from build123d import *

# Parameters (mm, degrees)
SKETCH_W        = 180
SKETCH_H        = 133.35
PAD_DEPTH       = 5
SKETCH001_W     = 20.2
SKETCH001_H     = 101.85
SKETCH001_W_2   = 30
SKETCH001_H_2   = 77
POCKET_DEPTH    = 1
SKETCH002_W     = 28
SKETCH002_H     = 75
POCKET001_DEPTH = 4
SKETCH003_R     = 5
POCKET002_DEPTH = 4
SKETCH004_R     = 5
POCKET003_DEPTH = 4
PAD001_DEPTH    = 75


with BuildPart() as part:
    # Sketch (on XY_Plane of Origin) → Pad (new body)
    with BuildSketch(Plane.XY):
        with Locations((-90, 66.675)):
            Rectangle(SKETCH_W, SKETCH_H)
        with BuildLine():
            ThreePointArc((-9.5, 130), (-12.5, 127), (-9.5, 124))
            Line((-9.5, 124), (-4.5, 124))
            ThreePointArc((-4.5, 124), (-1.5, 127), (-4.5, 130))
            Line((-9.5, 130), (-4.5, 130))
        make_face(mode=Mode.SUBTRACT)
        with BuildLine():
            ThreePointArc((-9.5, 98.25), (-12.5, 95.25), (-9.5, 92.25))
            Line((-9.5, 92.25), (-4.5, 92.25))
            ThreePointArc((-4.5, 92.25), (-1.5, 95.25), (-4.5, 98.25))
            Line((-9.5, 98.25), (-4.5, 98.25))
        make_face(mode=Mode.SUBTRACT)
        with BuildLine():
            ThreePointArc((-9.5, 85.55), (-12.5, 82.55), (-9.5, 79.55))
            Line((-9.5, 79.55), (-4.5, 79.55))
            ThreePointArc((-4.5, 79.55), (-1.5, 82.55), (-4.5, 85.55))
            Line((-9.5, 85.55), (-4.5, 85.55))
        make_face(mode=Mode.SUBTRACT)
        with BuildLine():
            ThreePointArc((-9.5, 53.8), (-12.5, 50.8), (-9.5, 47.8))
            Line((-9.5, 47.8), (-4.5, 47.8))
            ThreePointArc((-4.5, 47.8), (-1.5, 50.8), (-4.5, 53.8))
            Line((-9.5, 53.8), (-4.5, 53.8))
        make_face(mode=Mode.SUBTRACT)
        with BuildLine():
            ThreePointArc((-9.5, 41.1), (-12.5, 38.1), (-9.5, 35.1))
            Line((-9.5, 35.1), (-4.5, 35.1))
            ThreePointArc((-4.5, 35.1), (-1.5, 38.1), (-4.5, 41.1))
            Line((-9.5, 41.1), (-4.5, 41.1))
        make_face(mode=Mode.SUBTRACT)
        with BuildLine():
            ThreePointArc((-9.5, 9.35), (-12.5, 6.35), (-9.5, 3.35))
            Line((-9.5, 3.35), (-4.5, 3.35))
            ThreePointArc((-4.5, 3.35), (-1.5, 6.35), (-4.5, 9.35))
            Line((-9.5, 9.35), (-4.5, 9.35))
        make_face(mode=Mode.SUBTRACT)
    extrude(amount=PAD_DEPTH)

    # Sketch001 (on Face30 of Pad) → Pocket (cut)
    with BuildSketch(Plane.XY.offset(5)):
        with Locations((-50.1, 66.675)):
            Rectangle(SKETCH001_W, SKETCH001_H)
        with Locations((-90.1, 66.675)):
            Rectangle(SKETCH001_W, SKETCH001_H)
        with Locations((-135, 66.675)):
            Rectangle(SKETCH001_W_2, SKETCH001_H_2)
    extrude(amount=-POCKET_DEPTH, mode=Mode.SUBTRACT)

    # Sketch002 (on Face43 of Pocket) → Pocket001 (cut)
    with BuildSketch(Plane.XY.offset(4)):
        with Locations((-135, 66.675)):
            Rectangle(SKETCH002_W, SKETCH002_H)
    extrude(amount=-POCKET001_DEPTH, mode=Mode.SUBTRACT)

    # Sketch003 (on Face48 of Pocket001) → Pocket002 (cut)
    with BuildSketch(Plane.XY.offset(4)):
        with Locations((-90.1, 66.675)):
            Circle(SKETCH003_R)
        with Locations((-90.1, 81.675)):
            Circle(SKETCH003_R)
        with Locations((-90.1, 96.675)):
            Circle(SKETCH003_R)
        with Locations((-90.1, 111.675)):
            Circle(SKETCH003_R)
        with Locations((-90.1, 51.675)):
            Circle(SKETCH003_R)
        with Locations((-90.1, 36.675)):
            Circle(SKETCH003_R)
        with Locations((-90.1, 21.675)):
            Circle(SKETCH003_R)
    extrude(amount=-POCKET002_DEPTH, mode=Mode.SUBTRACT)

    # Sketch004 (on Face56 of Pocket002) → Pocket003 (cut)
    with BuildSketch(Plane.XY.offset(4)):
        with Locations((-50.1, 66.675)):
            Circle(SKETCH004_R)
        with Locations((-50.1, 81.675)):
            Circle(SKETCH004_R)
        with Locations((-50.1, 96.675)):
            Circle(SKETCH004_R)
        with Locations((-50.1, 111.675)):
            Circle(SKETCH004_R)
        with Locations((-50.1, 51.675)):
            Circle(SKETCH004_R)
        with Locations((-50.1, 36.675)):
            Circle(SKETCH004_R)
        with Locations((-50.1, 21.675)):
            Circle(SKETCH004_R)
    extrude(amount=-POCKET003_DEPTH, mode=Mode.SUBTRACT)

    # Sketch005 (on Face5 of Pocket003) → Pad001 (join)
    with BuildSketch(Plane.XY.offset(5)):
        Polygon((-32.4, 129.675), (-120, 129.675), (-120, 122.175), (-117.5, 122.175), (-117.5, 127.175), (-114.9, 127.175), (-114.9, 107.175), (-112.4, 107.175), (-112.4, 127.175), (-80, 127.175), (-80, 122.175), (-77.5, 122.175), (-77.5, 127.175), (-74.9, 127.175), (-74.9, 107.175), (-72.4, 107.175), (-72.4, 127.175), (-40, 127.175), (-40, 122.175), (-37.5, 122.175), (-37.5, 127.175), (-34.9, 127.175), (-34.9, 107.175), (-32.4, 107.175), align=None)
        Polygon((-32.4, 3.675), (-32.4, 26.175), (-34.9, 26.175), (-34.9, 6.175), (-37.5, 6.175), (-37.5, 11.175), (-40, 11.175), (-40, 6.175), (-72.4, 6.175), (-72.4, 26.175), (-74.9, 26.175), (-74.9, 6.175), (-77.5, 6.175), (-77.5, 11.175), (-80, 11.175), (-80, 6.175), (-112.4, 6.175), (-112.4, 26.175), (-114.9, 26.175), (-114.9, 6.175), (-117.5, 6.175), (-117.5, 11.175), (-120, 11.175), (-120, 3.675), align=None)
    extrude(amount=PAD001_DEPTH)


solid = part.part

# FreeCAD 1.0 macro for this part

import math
import FreeCAD as App
import Part
import Sketcher
from FreeCAD import Vector
Q = App.Units.Quantity

doc = App.newDocument("Part")
body = doc.addObject("PartDesign::Body", "Body")

# Sketch on XY plane
sketch1 = body.newObject("Sketcher::SketchObject", "Sketch")
sketch1.AttachmentSupport = (doc.getObject("XY_Plane"), [""])
sketch1.MapMode = "FlatFace"
sketch1.addGeometry([
    Part.LineSegment(Vector(-180, 133.3, 0), Vector(-180, 0, 0)),  # 0
    Part.LineSegment(Vector(-180, 0, 0), Vector(0, 0, 0)),  # 1
    Part.LineSegment(Vector(0, 0, 0), Vector(0, 133.3, 0)),  # 2
    Part.LineSegment(Vector(0, 133.3, 0), Vector(-180, 133.3, 0)),  # 3
    Part.ArcOfCircle(Part.Circle(Vector(-9.5, 6.3, 0), Vector(0, 0, 1), 3), math.radians(90), math.radians(270)),  # 4
    Part.LineSegment(Vector(-9.5, 9.3, 0), Vector(-4.5, 9.3, 0)),  # 5
    Part.ArcOfCircle(Part.Circle(Vector(-4.5, 6.3, 0), Vector(0, 0, 1), 3), math.radians(-90), math.radians(90)),  # 6
    Part.LineSegment(Vector(-4.5, 3.4, 0), Vector(-9.5, 3.4, 0)),  # 7
    Part.ArcOfCircle(Part.Circle(Vector(-9.5, 38.1, 0), Vector(0, 0, 1), 3), math.radians(90), math.radians(270)),  # 8
    Part.LineSegment(Vector(-9.5, 41.1, 0), Vector(-4.5, 41.1, 0)),  # 9
    Part.ArcOfCircle(Part.Circle(Vector(-4.5, 38.1, 0), Vector(0, 0, 1), 3), math.radians(-90), math.radians(90)),  # 10
    Part.LineSegment(Vector(-4.5, 35.1, 0), Vector(-9.5, 35.1, 0)),  # 11
    Part.ArcOfCircle(Part.Circle(Vector(-9.5, 50.8, 0), Vector(0, 0, 1), 3), math.radians(90), math.radians(270)),  # 12
    Part.LineSegment(Vector(-9.5, 53.8, 0), Vector(-4.5, 53.8, 0)),  # 13
    Part.ArcOfCircle(Part.Circle(Vector(-4.5, 50.8, 0), Vector(0, 0, 1), 3), math.radians(-90), math.radians(90)),  # 14
    Part.LineSegment(Vector(-4.5, 47.8, 0), Vector(-9.5, 47.8, 0)),  # 15
    Part.ArcOfCircle(Part.Circle(Vector(-9.5, 82.5, 0), Vector(0, 0, 1), 3), math.radians(90), math.radians(270)),  # 16
    Part.LineSegment(Vector(-9.5, 85.5, 0), Vector(-4.5, 85.5, 0)),  # 17
    Part.ArcOfCircle(Part.Circle(Vector(-4.5, 82.5, 0), Vector(0, 0, 1), 3), math.radians(-90), math.radians(90)),  # 18
    Part.LineSegment(Vector(-4.5, 79.5, 0), Vector(-9.5, 79.5, 0)),  # 19
    Part.ArcOfCircle(Part.Circle(Vector(-9.5, 95.2, 0), Vector(0, 0, 1), 3), math.radians(90), math.radians(270)),  # 20
    Part.LineSegment(Vector(-9.5, 98.2, 0), Vector(-4.5, 98.2, 0)),  # 21
    Part.ArcOfCircle(Part.Circle(Vector(-4.5, 95.2, 0), Vector(0, 0, 1), 3), math.radians(-90), math.radians(90)),  # 22
    Part.LineSegment(Vector(-4.5, 92.2, 0), Vector(-9.5, 92.2, 0)),  # 23
    Part.ArcOfCircle(Part.Circle(Vector(-9.5, 127, 0), Vector(0, 0, 1), 3), math.radians(90), math.radians(270)),  # 24
    Part.LineSegment(Vector(-9.5, 130, 0), Vector(-4.5, 130, 0)),  # 25
    Part.ArcOfCircle(Part.Circle(Vector(-4.5, 127, 0), Vector(0, 0, 1), 3), math.radians(-90), math.radians(90)),  # 26
    Part.LineSegment(Vector(-4.5, 124, 0), Vector(-9.5, 124, 0)),  # 27
], False)
sketch1.addConstraint([
    Sketcher.Constraint("Coincident", 0, 2, 1, 1),
    Sketcher.Constraint("Coincident", 1, 2, 2, 1),
    Sketcher.Constraint("Coincident", 2, 2, 3, 1),
    Sketcher.Constraint("Coincident", 3, 2, 0, 1),
    Sketcher.Constraint("Tangent", 4, 1, 5, 1),
    Sketcher.Constraint("Tangent", 5, 2, 6, 2),
    Sketcher.Constraint("Tangent", 6, 1, 7, 1),
    Sketcher.Constraint("Tangent", 7, 2, 4, 2),
    Sketcher.Constraint("Tangent", 8, 1, 9, 1),
    Sketcher.Constraint("Tangent", 9, 2, 10, 2),
    Sketcher.Constraint("Tangent", 10, 1, 11, 1),
    Sketcher.Constraint("Tangent", 11, 2, 8, 2),
    Sketcher.Constraint("Tangent", 12, 1, 13, 1),
    Sketcher.Constraint("Tangent", 13, 2, 14, 2),
    Sketcher.Constraint("Tangent", 14, 1, 15, 1),
    Sketcher.Constraint("Tangent", 15, 2, 12, 2),
    Sketcher.Constraint("Tangent", 16, 1, 17, 1),
    Sketcher.Constraint("Tangent", 17, 2, 18, 2),
    Sketcher.Constraint("Tangent", 18, 1, 19, 1),
    Sketcher.Constraint("Tangent", 19, 2, 16, 2),
    Sketcher.Constraint("Tangent", 20, 1, 21, 1),
    Sketcher.Constraint("Tangent", 21, 2, 22, 2),
    Sketcher.Constraint("Tangent", 22, 1, 23, 1),
    Sketcher.Constraint("Tangent", 23, 2, 20, 2),
    Sketcher.Constraint("Tangent", 24, 1, 25, 1),
    Sketcher.Constraint("Tangent", 25, 2, 26, 2),
    Sketcher.Constraint("Tangent", 26, 1, 27, 1),
    Sketcher.Constraint("Tangent", 27, 2, 24, 2),
    Sketcher.Constraint("Vertical", 0),
    Sketcher.Constraint("Horizontal", 1),
    Sketcher.Constraint("Vertical", 2),
    Sketcher.Constraint("Horizontal", 3),
    Sketcher.Constraint("Horizontal", 5),
    Sketcher.Constraint("Horizontal", 7),
    Sketcher.Constraint("Horizontal", 9),
    Sketcher.Constraint("Horizontal", 11),
    Sketcher.Constraint("Horizontal", 13),
    Sketcher.Constraint("Horizontal", 15),
    Sketcher.Constraint("Horizontal", 17),
    Sketcher.Constraint("Horizontal", 19),
    Sketcher.Constraint("Horizontal", 21),
    Sketcher.Constraint("Horizontal", 23),
    Sketcher.Constraint("Horizontal", 25),
    Sketcher.Constraint("Horizontal", 27),
    Sketcher.Constraint("Coincident", 1, 2, -1, 1),
    Sketcher.Constraint("Equal", 6, 8),
    Sketcher.Constraint("Equal", 10, 12),
    Sketcher.Constraint("Equal", 14, 16),
    Sketcher.Constraint("Equal", 18, 20),
    Sketcher.Constraint("Equal", 22, 24),
    Sketcher.Constraint("Vertical", 4, 3, 8, 3),
    Sketcher.Constraint("Vertical", 6, 3, 10, 3),
    Sketcher.Constraint("Vertical", 8, 3, 12, 3),
    Sketcher.Constraint("Vertical", 10, 3, 14, 3),
    Sketcher.Constraint("Vertical", 12, 3, 16, 3),
    Sketcher.Constraint("Vertical", 14, 3, 18, 3),
    Sketcher.Constraint("Vertical", 16, 3, 20, 3),
    Sketcher.Constraint("Vertical", 18, 3, 22, 3),
    Sketcher.Constraint("Vertical", 20, 3, 24, 3),
    Sketcher.Constraint("Vertical", 22, 3, 26, 3),
    Sketcher.Constraint("Radius", 4, Q("3 mm")),
    Sketcher.Constraint("DistanceX", 1, 1, 1, 2, Q("180 mm")),
    Sketcher.Constraint("DistanceX", 5, 1, 5, 2, Q("5 mm")),
    Sketcher.Constraint("DistanceY", -1, 1, 24, 3, Q("127 mm")),
    Sketcher.Constraint("DistanceY", 0, 2, 0, 1, Q("133.35 mm")),
    Sketcher.Constraint("DistanceX", 4, 3, -1, 1, Q("9.5 mm")),
    Sketcher.Constraint("DistanceY", -1, 1, 8, 3, Q("38.1 mm")),
    Sketcher.Constraint("DistanceY", -1, 1, 12, 3, Q("50.8 mm")),
    Sketcher.Constraint("DistanceY", 4, 3, 16, 3, Q("76.2 mm")),
    Sketcher.Constraint("DistanceY", 16, 3, 20, 3, Q("12.7 mm")),
    Sketcher.Constraint("DistanceY", 22, 3, 2, 2, Q("38.1 mm")),
])
pad1 = body.newObject("PartDesign::Pad", "Pad")
pad1.Profile = sketch1
pad1.Length = 5

# Sketch on XY plane
sketch2 = body.newObject("Sketcher::SketchObject", "Sketch001")
sketch2.AttachmentSupport = (doc.getObject("XY_Plane"), [""])
sketch2.MapMode = "FlatFace"
sketch2.AttachmentOffset = App.Placement(Vector(0, 0, 5), App.Rotation())
sketch2.addGeometry([
    Part.LineSegment(Vector(-60, 118, 0), Vector(-60, 16, 0)),  # 0
    Part.LineSegment(Vector(-60, 16, 0), Vector(-40, 16, 0)),  # 1
    Part.LineSegment(Vector(-40, 16, 0), Vector(-40, 118, 0)),  # 2
    Part.LineSegment(Vector(-40, 118, 0), Vector(-60, 118, 0)),  # 3
    Part.LineSegment(Vector(-100, 118, 0), Vector(-100, 16, 0)),  # 4
    Part.LineSegment(Vector(-100, 16, 0), Vector(-80, 16, 0)),  # 5
    Part.LineSegment(Vector(-80, 16, 0), Vector(-80, 118, 0)),  # 6
    Part.LineSegment(Vector(-80, 118, 0), Vector(-100, 118, 0)),  # 7
    Part.LineSegment(Vector(-150, 105, 0), Vector(-150, 28, 0)),  # 8
    Part.LineSegment(Vector(-150, 28, 0), Vector(-120, 28, 0)),  # 9
    Part.LineSegment(Vector(-120, 28, 0), Vector(-120, 105, 0)),  # 10
    Part.LineSegment(Vector(-120, 105, 0), Vector(-150, 105, 0)),  # 11
], False)
sketch2.addConstraint([
    Sketcher.Constraint("Coincident", 0, 2, 1, 1),
    Sketcher.Constraint("Coincident", 1, 2, 2, 1),
    Sketcher.Constraint("Coincident", 2, 2, 3, 1),
    Sketcher.Constraint("Coincident", 3, 2, 0, 1),
    Sketcher.Constraint("Coincident", 4, 2, 5, 1),
    Sketcher.Constraint("Coincident", 5, 2, 6, 1),
    Sketcher.Constraint("Coincident", 6, 2, 7, 1),
    Sketcher.Constraint("Coincident", 7, 2, 4, 1),
    Sketcher.Constraint("Coincident", 8, 2, 9, 1),
    Sketcher.Constraint("Coincident", 9, 2, 10, 1),
    Sketcher.Constraint("Coincident", 10, 2, 11, 1),
    Sketcher.Constraint("Coincident", 11, 2, 8, 1),
    Sketcher.Constraint("Vertical", 0),
    Sketcher.Constraint("Horizontal", 1),
    Sketcher.Constraint("Vertical", 2),
    Sketcher.Constraint("Horizontal", 3),
    Sketcher.Constraint("Vertical", 4),
    Sketcher.Constraint("Horizontal", 5),
    Sketcher.Constraint("Vertical", 6),
    Sketcher.Constraint("Horizontal", 7),
    Sketcher.Constraint("Vertical", 8),
    Sketcher.Constraint("Horizontal", 9),
    Sketcher.Constraint("Vertical", 10),
    Sketcher.Constraint("Horizontal", 11),
    Sketcher.Constraint("Horizontal", 1, 2, 4, 2),
    Sketcher.Constraint("Horizontal", 3, 2, 6, 2),
    Sketcher.Constraint("Equal", 3, 5),
    Sketcher.Constraint("DistanceX", 9, 1, 9, 2, Q("30 mm")),
    Sketcher.Constraint("DistanceY", 8, 2, 8, 1, Q("77 mm")),
    Sketcher.Constraint("DistanceX", 1, 1, 1, 2, Q("20.2 mm")),
    Sketcher.Constraint("DistanceX", 1, 2, -1, 1, Q("40 mm")),
    Sketcher.Constraint("DistanceX", 5, 2, -1, 1, Q("80 mm")),
    Sketcher.Constraint("DistanceX", 8, 2, -1, 1, Q("150 mm")),
    Sketcher.Constraint("DistanceY", 0, 2, 0, 1, Q("101.85 mm")),
    Sketcher.Constraint("DistanceY", -1, 1, 2, 2, Q("117.6 mm")),
    Sketcher.Constraint("DistanceY", -1, 1, 8, 2, Q("28.175 mm")),
])
pocket1 = body.newObject("PartDesign::Pocket", "Pocket")
pocket1.Profile = sketch2
pocket1.Length = 1

# Sketch on XY plane
sketch3 = body.newObject("Sketcher::SketchObject", "Sketch002")
sketch3.AttachmentSupport = (doc.getObject("XY_Plane"), [""])
sketch3.MapMode = "FlatFace"
sketch3.AttachmentOffset = App.Placement(Vector(0, 0, 4), App.Rotation())
sketch3.addGeometry([
    Part.LineSegment(Vector(-149, 104, 0), Vector(-149, 29, 0)),
    Part.LineSegment(Vector(-149, 29, 0), Vector(-121, 29, 0)),
    Part.LineSegment(Vector(-121, 29, 0), Vector(-121, 104, 0)),
    Part.LineSegment(Vector(-121, 104, 0), Vector(-149, 104, 0)),
], False)
sketch3.addConstraint([
    Sketcher.Constraint("Coincident", 0, 2, 1, 1),
    Sketcher.Constraint("Coincident", 1, 2, 2, 1),
    Sketcher.Constraint("Coincident", 2, 2, 3, 1),
    Sketcher.Constraint("Coincident", 3, 2, 0, 1),
    Sketcher.Constraint("Vertical", 0),
    Sketcher.Constraint("Horizontal", 1),
    Sketcher.Constraint("Vertical", 2),
    Sketcher.Constraint("Horizontal", 3),
    Sketcher.Constraint("DistanceX", 1, 1, 1, 2, Q("28 mm")),
    Sketcher.Constraint("DistanceY", 0, 2, 0, 1, Q("75 mm")),
    Sketcher.Constraint("DistanceX", 0, 2, -1, 1, Q("149 mm")),
    Sketcher.Constraint("DistanceY", -1, 1, 0, 2, Q("29.175 mm")),
])
pocket2 = body.newObject("PartDesign::Pocket", "Pocket001")
pocket2.Profile = sketch3
pocket2.Length = 4

# Sketch on XY plane
sketch4 = body.newObject("Sketcher::SketchObject", "Sketch003")
sketch4.AttachmentSupport = (doc.getObject("XY_Plane"), [""])
sketch4.MapMode = "FlatFace"
sketch4.AttachmentOffset = App.Placement(Vector(0, 0, 4), App.Rotation())
sketch4.addGeometry([
    Part.Circle(Vector(-90, 67, 0), Vector(0, 0, 1), 5),  # 0
    Part.Circle(Vector(-90, 82, 0), Vector(0, 0, 1), 5),  # 1
    Part.Circle(Vector(-90, 97, 0), Vector(0, 0, 1), 5),  # 2
    Part.Circle(Vector(-90, 112, 0), Vector(0, 0, 1), 5),  # 3
    Part.Circle(Vector(-90, 52, 0), Vector(0, 0, 1), 5),  # 4
    Part.Circle(Vector(-90, 37, 0), Vector(0, 0, 1), 5),  # 5
    Part.Circle(Vector(-90, 22, 0), Vector(0, 0, 1), 5),  # 6
], False)
sketch4.addConstraint([
    Sketcher.Constraint("Equal", 0, 1),
    Sketcher.Constraint("Equal", 1, 2),
    Sketcher.Constraint("Equal", 2, 3),
    Sketcher.Constraint("Equal", 3, 4),
    Sketcher.Constraint("Equal", 4, 5),
    Sketcher.Constraint("Equal", 5, 6),
    Sketcher.Constraint("Vertical", 0, 3, 1, 3),
    Sketcher.Constraint("Vertical", 1, 3, 2, 3),
    Sketcher.Constraint("Vertical", 2, 3, 3, 3),
    Sketcher.Constraint("Vertical", 3, 3, 4, 3),
    Sketcher.Constraint("Vertical", 4, 3, 5, 3),
    Sketcher.Constraint("Vertical", 5, 3, 6, 3),
    Sketcher.Constraint("Diameter", 0, Q("10 mm")),
    Sketcher.Constraint("DistanceY", 0, 3, 1, 3, Q("15 mm")),
    Sketcher.Constraint("DistanceY", 1, 3, 2, 3, Q("15 mm")),
    Sketcher.Constraint("DistanceY", 2, 3, 3, 3, Q("15 mm")),
    Sketcher.Constraint("DistanceY", 4, 3, 0, 3, Q("15 mm")),
    Sketcher.Constraint("DistanceY", 5, 3, 4, 3, Q("15 mm")),
    Sketcher.Constraint("DistanceY", 6, 3, 5, 3, Q("15 mm")),
    Sketcher.Constraint("DistanceX", 0, 3, -1, 1, Q("90.1 mm")),
    Sketcher.Constraint("DistanceY", -1, 1, 0, 3, Q("66.675 mm")),
])
pocket3 = body.newObject("PartDesign::Pocket", "Pocket002")
pocket3.Profile = sketch4
pocket3.Length = 4

# Sketch on XY plane
sketch5 = body.newObject("Sketcher::SketchObject", "Sketch004")
sketch5.AttachmentSupport = (doc.getObject("XY_Plane"), [""])
sketch5.MapMode = "FlatFace"
sketch5.AttachmentOffset = App.Placement(Vector(0, 0, 4), App.Rotation())
sketch5.addGeometry([
    Part.Circle(Vector(-50, 67, 0), Vector(0, 0, 1), 5),  # 0
    Part.Circle(Vector(-50, 82, 0), Vector(0, 0, 1), 5),  # 1
    Part.Circle(Vector(-50, 97, 0), Vector(0, 0, 1), 5),  # 2
    Part.Circle(Vector(-50, 112, 0), Vector(0, 0, 1), 5),  # 3
    Part.Circle(Vector(-50, 52, 0), Vector(0, 0, 1), 5),  # 4
    Part.Circle(Vector(-50, 37, 0), Vector(0, 0, 1), 5),  # 5
    Part.Circle(Vector(-50, 22, 0), Vector(0, 0, 1), 5),  # 6
], False)
sketch5.addConstraint([
    Sketcher.Constraint("Equal", 0, 1),
    Sketcher.Constraint("Equal", 1, 2),
    Sketcher.Constraint("Equal", 2, 3),
    Sketcher.Constraint("Equal", 3, 4),
    Sketcher.Constraint("Equal", 4, 5),
    Sketcher.Constraint("Equal", 5, 6),
    Sketcher.Constraint("Vertical", 0, 3, 1, 3),
    Sketcher.Constraint("Vertical", 1, 3, 2, 3),
    Sketcher.Constraint("Vertical", 2, 3, 3, 3),
    Sketcher.Constraint("Vertical", 3, 3, 4, 3),
    Sketcher.Constraint("Vertical", 4, 3, 5, 3),
    Sketcher.Constraint("Vertical", 5, 3, 6, 3),
    Sketcher.Constraint("Diameter", 0, Q("10 mm")),
    Sketcher.Constraint("DistanceY", 0, 3, 1, 3, Q("15 mm")),
    Sketcher.Constraint("DistanceY", 1, 3, 2, 3, Q("15 mm")),
    Sketcher.Constraint("DistanceY", 2, 3, 3, 3, Q("15 mm")),
    Sketcher.Constraint("DistanceY", 4, 3, 0, 3, Q("15 mm")),
    Sketcher.Constraint("DistanceY", 5, 3, 4, 3, Q("15 mm")),
    Sketcher.Constraint("DistanceY", 6, 3, 5, 3, Q("15 mm")),
    Sketcher.Constraint("DistanceX", 0, 3, -1, 1, Q("50.1 mm")),
    Sketcher.Constraint("DistanceY", -1, 1, 0, 3, Q("66.675 mm")),
])
pocket4 = body.newObject("PartDesign::Pocket", "Pocket003")
pocket4.Profile = sketch5
pocket4.Length = 4

# Sketch on XY plane
sketch6 = body.newObject("Sketcher::SketchObject", "Sketch005")
sketch6.AttachmentSupport = (doc.getObject("XY_Plane"), [""])
sketch6.MapMode = "FlatFace"
sketch6.AttachmentOffset = App.Placement(Vector(0, 0, 5), App.Rotation())
sketch6.addGeometry([
    Part.LineSegment(Vector(-32.4, 129.7, 0), Vector(-120, 129.7, 0)),  # 0
    Part.LineSegment(Vector(-120, 129.7, 0), Vector(-120, 122.2, 0)),  # 1
    Part.LineSegment(Vector(-120, 122.2, 0), Vector(-117.5, 122.2, 0)),  # 2
    Part.LineSegment(Vector(-117.5, 122.2, 0), Vector(-117.5, 127.2, 0)),  # 3
    Part.LineSegment(Vector(-117.5, 127.2, 0), Vector(-114.9, 127.2, 0)),  # 4
    Part.LineSegment(Vector(-114.9, 127.2, 0), Vector(-114.9, 107.2, 0)),  # 5
    Part.LineSegment(Vector(-114.9, 107.2, 0), Vector(-112.4, 107.2, 0)),  # 6
    Part.LineSegment(Vector(-112.4, 107.2, 0), Vector(-112.4, 127.2, 0)),  # 7
    Part.LineSegment(Vector(-112.4, 127.2, 0), Vector(-80, 127.2, 0)),  # 8
    Part.LineSegment(Vector(-80, 127.2, 0), Vector(-80, 122.2, 0)),  # 9
    Part.LineSegment(Vector(-80, 122.2, 0), Vector(-77.5, 122.2, 0)),  # 10
    Part.LineSegment(Vector(-77.5, 122.2, 0), Vector(-77.5, 127.2, 0)),  # 11
    Part.LineSegment(Vector(-77.5, 127.2, 0), Vector(-74.9, 127.2, 0)),  # 12
    Part.LineSegment(Vector(-74.9, 127.2, 0), Vector(-74.9, 107.2, 0)),  # 13
    Part.LineSegment(Vector(-74.9, 107.2, 0), Vector(-72.4, 107.2, 0)),  # 14
    Part.LineSegment(Vector(-72.4, 107.2, 0), Vector(-72.4, 127.2, 0)),  # 15
    Part.LineSegment(Vector(-72.4, 127.2, 0), Vector(-40, 127.2, 0)),  # 16
    Part.LineSegment(Vector(-40, 127.2, 0), Vector(-40, 122.2, 0)),  # 17
    Part.LineSegment(Vector(-40, 122.2, 0), Vector(-37.5, 122.2, 0)),  # 18
    Part.LineSegment(Vector(-37.5, 122.2, 0), Vector(-37.5, 127.2, 0)),  # 19
    Part.LineSegment(Vector(-37.5, 127.2, 0), Vector(-34.9, 127.2, 0)),  # 20
    Part.LineSegment(Vector(-34.9, 127.2, 0), Vector(-34.9, 107.2, 0)),  # 21
    Part.LineSegment(Vector(-34.9, 107.2, 0), Vector(-32.4, 107.2, 0)),  # 22
    Part.LineSegment(Vector(-32.4, 107.2, 0), Vector(-32.4, 129.7, 0)),  # 23
    Part.LineSegment(Vector(-32.4, 3.7, 0), Vector(-32.4, 26.2, 0)),  # 24
    Part.LineSegment(Vector(-32.4, 26.2, 0), Vector(-34.9, 26.2, 0)),  # 25
    Part.LineSegment(Vector(-34.9, 26.2, 0), Vector(-34.9, 6.2, 0)),  # 26
    Part.LineSegment(Vector(-34.9, 6.2, 0), Vector(-37.5, 6.2, 0)),  # 27
    Part.LineSegment(Vector(-37.5, 6.2, 0), Vector(-37.5, 11.2, 0)),  # 28
    Part.LineSegment(Vector(-37.5, 11.2, 0), Vector(-40, 11.2, 0)),  # 29
    Part.LineSegment(Vector(-40, 11.2, 0), Vector(-40, 6.2, 0)),  # 30
    Part.LineSegment(Vector(-40, 6.2, 0), Vector(-72.4, 6.2, 0)),  # 31
    Part.LineSegment(Vector(-72.4, 6.2, 0), Vector(-72.4, 26.2, 0)),  # 32
    Part.LineSegment(Vector(-72.4, 26.2, 0), Vector(-74.9, 26.2, 0)),  # 33
    Part.LineSegment(Vector(-74.9, 26.2, 0), Vector(-74.9, 6.2, 0)),  # 34
    Part.LineSegment(Vector(-74.9, 6.2, 0), Vector(-77.5, 6.2, 0)),  # 35
    Part.LineSegment(Vector(-77.5, 6.2, 0), Vector(-77.5, 11.2, 0)),  # 36
    Part.LineSegment(Vector(-77.5, 11.2, 0), Vector(-80, 11.2, 0)),  # 37
    Part.LineSegment(Vector(-80, 11.2, 0), Vector(-80, 6.2, 0)),  # 38
    Part.LineSegment(Vector(-80, 6.2, 0), Vector(-112.4, 6.2, 0)),  # 39
    Part.LineSegment(Vector(-112.4, 6.2, 0), Vector(-112.4, 26.2, 0)),  # 40
    Part.LineSegment(Vector(-112.4, 26.2, 0), Vector(-114.9, 26.2, 0)),  # 41
    Part.LineSegment(Vector(-114.9, 26.2, 0), Vector(-114.9, 6.2, 0)),  # 42
    Part.LineSegment(Vector(-114.9, 6.2, 0), Vector(-117.5, 6.2, 0)),  # 43
    Part.LineSegment(Vector(-117.5, 6.2, 0), Vector(-117.5, 11.2, 0)),  # 44
    Part.LineSegment(Vector(-117.5, 11.2, 0), Vector(-120, 11.2, 0)),  # 45
    Part.LineSegment(Vector(-120, 11.2, 0), Vector(-120, 3.7, 0)),  # 46
    Part.LineSegment(Vector(-120, 3.7, 0), Vector(-32.4, 3.7, 0)),  # 47
], False)
sketch6.addConstraint([
    Sketcher.Constraint("Coincident", 0, 2, 1, 1),
    Sketcher.Constraint("Coincident", 1, 2, 2, 1),
    Sketcher.Constraint("Coincident", 2, 2, 3, 1),
    Sketcher.Constraint("Coincident", 3, 2, 4, 1),
    Sketcher.Constraint("Coincident", 4, 2, 5, 1),
    Sketcher.Constraint("Coincident", 5, 2, 6, 1),
    Sketcher.Constraint("Coincident", 6, 2, 7, 1),
    Sketcher.Constraint("Coincident", 7, 2, 8, 1),
    Sketcher.Constraint("Coincident", 8, 2, 9, 1),
    Sketcher.Constraint("Coincident", 9, 2, 10, 1),
    Sketcher.Constraint("Coincident", 10, 2, 11, 1),
    Sketcher.Constraint("Coincident", 11, 2, 12, 1),
    Sketcher.Constraint("Coincident", 12, 2, 13, 1),
    Sketcher.Constraint("Coincident", 13, 2, 14, 1),
    Sketcher.Constraint("Coincident", 14, 2, 15, 1),
    Sketcher.Constraint("Coincident", 15, 2, 16, 1),
    Sketcher.Constraint("Coincident", 16, 2, 17, 1),
    Sketcher.Constraint("Coincident", 17, 2, 18, 1),
    Sketcher.Constraint("Coincident", 18, 2, 19, 1),
    Sketcher.Constraint("Coincident", 19, 2, 20, 1),
    Sketcher.Constraint("Coincident", 20, 2, 21, 1),
    Sketcher.Constraint("Coincident", 21, 2, 22, 1),
    Sketcher.Constraint("Coincident", 22, 2, 23, 1),
    Sketcher.Constraint("Coincident", 23, 2, 0, 1),
    Sketcher.Constraint("Coincident", 24, 2, 25, 1),
    Sketcher.Constraint("Coincident", 25, 2, 26, 1),
    Sketcher.Constraint("Coincident", 26, 2, 27, 1),
    Sketcher.Constraint("Coincident", 27, 2, 28, 1),
    Sketcher.Constraint("Coincident", 28, 2, 29, 1),
    Sketcher.Constraint("Coincident", 29, 2, 30, 1),
    Sketcher.Constraint("Coincident", 30, 2, 31, 1),
    Sketcher.Constraint("Coincident", 31, 2, 32, 1),
    Sketcher.Constraint("Coincident", 32, 2, 33, 1),
    Sketcher.Constraint("Coincident", 33, 2, 34, 1),
    Sketcher.Constraint("Coincident", 34, 2, 35, 1),
    Sketcher.Constraint("Coincident", 35, 2, 36, 1),
    Sketcher.Constraint("Coincident", 36, 2, 37, 1),
    Sketcher.Constraint("Coincident", 37, 2, 38, 1),
    Sketcher.Constraint("Coincident", 38, 2, 39, 1),
    Sketcher.Constraint("Coincident", 39, 2, 40, 1),
    Sketcher.Constraint("Coincident", 40, 2, 41, 1),
    Sketcher.Constraint("Coincident", 41, 2, 42, 1),
    Sketcher.Constraint("Coincident", 42, 2, 43, 1),
    Sketcher.Constraint("Coincident", 43, 2, 44, 1),
    Sketcher.Constraint("Coincident", 44, 2, 45, 1),
    Sketcher.Constraint("Coincident", 45, 2, 46, 1),
    Sketcher.Constraint("Coincident", 46, 2, 47, 1),
    Sketcher.Constraint("Coincident", 47, 2, 24, 1),
    Sketcher.Constraint("Horizontal", 0),
    Sketcher.Constraint("Vertical", 1),
    Sketcher.Constraint("Horizontal", 2),
    Sketcher.Constraint("Vertical", 3),
    Sketcher.Constraint("Horizontal", 4),
    Sketcher.Constraint("Vertical", 5),
    Sketcher.Constraint("Horizontal", 6),
    Sketcher.Constraint("Vertical", 7),
    Sketcher.Constraint("Horizontal", 8),
    Sketcher.Constraint("Vertical", 9),
    Sketcher.Constraint("Horizontal", 10),
    Sketcher.Constraint("Vertical", 11),
    Sketcher.Constraint("Horizontal", 12),
    Sketcher.Constraint("Vertical", 13),
    Sketcher.Constraint("Horizontal", 14),
    Sketcher.Constraint("Vertical", 15),
    Sketcher.Constraint("Horizontal", 16),
    Sketcher.Constraint("Vertical", 17),
    Sketcher.Constraint("Horizontal", 18),
    Sketcher.Constraint("Vertical", 19),
    Sketcher.Constraint("Horizontal", 20),
    Sketcher.Constraint("Vertical", 21),
    Sketcher.Constraint("Horizontal", 22),
    Sketcher.Constraint("Vertical", 23),
    Sketcher.Constraint("Vertical", 24),
    Sketcher.Constraint("Horizontal", 25),
    Sketcher.Constraint("Vertical", 26),
    Sketcher.Constraint("Horizontal", 27),
    Sketcher.Constraint("Vertical", 28),
    Sketcher.Constraint("Horizontal", 29),
    Sketcher.Constraint("Vertical", 30),
    Sketcher.Constraint("Horizontal", 31),
    Sketcher.Constraint("Vertical", 32),
    Sketcher.Constraint("Horizontal", 33),
    Sketcher.Constraint("Vertical", 34),
    Sketcher.Constraint("Horizontal", 35),
    Sketcher.Constraint("Vertical", 36),
    Sketcher.Constraint("Horizontal", 37),
    Sketcher.Constraint("Vertical", 38),
    Sketcher.Constraint("Horizontal", 39),
    Sketcher.Constraint("Vertical", 40),
    Sketcher.Constraint("Horizontal", 41),
    Sketcher.Constraint("Vertical", 42),
    Sketcher.Constraint("Horizontal", 43),
    Sketcher.Constraint("Vertical", 44),
    Sketcher.Constraint("Horizontal", 45),
    Sketcher.Constraint("Vertical", 46),
    Sketcher.Constraint("Horizontal", 47),
    Sketcher.Constraint("Horizontal", 4, 2, 7, 2),
    Sketcher.Constraint("Horizontal", 2, 2, 9, 2),
    Sketcher.Constraint("Horizontal", 8, 2, 11, 2),
    Sketcher.Constraint("Horizontal", 6, 2, 13, 2),
    Sketcher.Constraint("Horizontal", 12, 2, 15, 2),
    Sketcher.Constraint("Horizontal", 10, 2, 17, 2),
    Sketcher.Constraint("Horizontal", 16, 2, 19, 2),
    Sketcher.Constraint("Horizontal", 14, 2, 21, 2),
    Sketcher.Constraint("Horizontal", 27, 2, 30, 2),
    Sketcher.Constraint("Horizontal", 25, 2, 32, 2),
    Sketcher.Constraint("Horizontal", 31, 2, 34, 2),
    Sketcher.Constraint("Horizontal", 29, 2, 36, 2),
    Sketcher.Constraint("Horizontal", 35, 2, 38, 2),
    Sketcher.Constraint("Horizontal", 33, 2, 40, 2),
    Sketcher.Constraint("Horizontal", 39, 2, 42, 2),
    Sketcher.Constraint("Horizontal", 37, 2, 44, 2),
    Sketcher.Constraint("Vertical", 23, 2, 24, 2),
    Sketcher.Constraint("Vertical", 21, 2, 25, 2),
    Sketcher.Constraint("Vertical", 19, 2, 27, 2),
    Sketcher.Constraint("Vertical", 17, 2, 29, 2),
    Sketcher.Constraint("Vertical", 15, 2, 31, 2),
    Sketcher.Constraint("Vertical", 13, 2, 33, 2),
    Sketcher.Constraint("Vertical", 11, 2, 35, 2),
    Sketcher.Constraint("Vertical", 9, 2, 37, 2),
    Sketcher.Constraint("Vertical", 7, 2, 39, 2),
    Sketcher.Constraint("Vertical", 5, 2, 41, 2),
    Sketcher.Constraint("Vertical", 3, 2, 43, 2),
    Sketcher.Constraint("Vertical", 1, 2, 45, 2),
    Sketcher.Constraint("Equal", 2, 6),
    Sketcher.Constraint("Equal", 6, 10),
    Sketcher.Constraint("Equal", 4, 12),
    Sketcher.Constraint("Equal", 10, 14),
    Sketcher.Constraint("Equal", 8, 16),
    Sketcher.Constraint("Equal", 14, 18),
    Sketcher.Constraint("Equal", 12, 20),
    Sketcher.Constraint("Equal", 18, 22),
    Sketcher.Constraint("Equal", 23, 24),
    Sketcher.Constraint("Equal", 21, 26),
    Sketcher.Constraint("Equal", 19, 28),
    Sketcher.Constraint("DistanceY", 3, 1, 3, 2, Q("5 mm")),
    Sketcher.Constraint("DistanceY", 5, 2, 5, 1, Q("20 mm")),
    Sketcher.Constraint("DistanceX", 0, 2, 0, 1, Q("87.6 mm")),
    Sketcher.Constraint("DistanceX", 2, 1, 2, 2, Q("2.5 mm")),
    Sketcher.Constraint("DistanceX", 4, 1, 4, 2, Q("2.6 mm")),
    Sketcher.Constraint("DistanceY", 1, 2, 1, 1, Q("7.5 mm")),
    Sketcher.Constraint("DistanceX", 0, 2, -1, 1, Q("120 mm")),
    Sketcher.Constraint("DistanceY", 24, 2, 22, 2, Q("81 mm")),
    Sketcher.Constraint("DistanceY", -1, 1, 0, 2, Q("129.675 mm")),
])
pad2 = body.newObject("PartDesign::Pad", "Pad001")
pad2.Profile = sketch6
pad2.Length = 75

doc.recompute()
